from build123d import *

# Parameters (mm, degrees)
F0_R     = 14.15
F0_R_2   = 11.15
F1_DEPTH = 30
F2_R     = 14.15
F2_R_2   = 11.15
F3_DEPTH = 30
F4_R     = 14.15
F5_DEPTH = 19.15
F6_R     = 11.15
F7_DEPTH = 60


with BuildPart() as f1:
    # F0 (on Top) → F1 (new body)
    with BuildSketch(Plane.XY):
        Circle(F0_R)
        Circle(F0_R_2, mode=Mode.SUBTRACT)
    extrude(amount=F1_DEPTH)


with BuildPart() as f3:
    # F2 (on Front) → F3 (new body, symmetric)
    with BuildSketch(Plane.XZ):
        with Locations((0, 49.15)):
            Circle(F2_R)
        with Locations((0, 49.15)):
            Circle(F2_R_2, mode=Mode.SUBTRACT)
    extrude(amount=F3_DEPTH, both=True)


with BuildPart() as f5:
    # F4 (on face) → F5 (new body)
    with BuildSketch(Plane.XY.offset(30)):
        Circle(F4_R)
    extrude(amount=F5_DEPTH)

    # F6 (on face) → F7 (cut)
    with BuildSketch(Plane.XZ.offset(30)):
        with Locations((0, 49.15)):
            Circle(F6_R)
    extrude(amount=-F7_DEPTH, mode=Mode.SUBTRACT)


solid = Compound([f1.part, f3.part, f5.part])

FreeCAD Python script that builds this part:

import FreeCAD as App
import Part
import Sketcher
from FreeCAD import Vector

doc = App.newDocument("Part")
params = doc.addObject("Spreadsheet::Sheet", "Params")
for row, (alias, value) in enumerate([
    ("sketch1_diameter", "28.3 mm"),
    ("sketch1_diameter2", "22.3 mm"),
    ("pad1_length", "30 mm"),
    ("sketch2_diameter", "28.3 mm"),
    ("sketch2_diameter2", "22.3 mm"),
    ("pad2_length", "60 mm"),
    ("sketch3_diameter", "28.3 mm"),
    ("pad3_length", "19.15 mm"),
    ("sketch4_diameter", "22.3 mm"),
    ("pocket1_length", "60 mm"),
], start=1):
    params.set(f"A{row}", alias)
    params.set(f"B{row}", "=" + value)
    params.setAlias(f"B{row}", alias)

body = doc.addObject("PartDesign::Body", "Body")

# Sketch on XY plane
sketch1 = body.newObject("Sketcher::SketchObject", "Sketch")
sketch1.AttachmentSupport = (doc.getObject("XY_Plane"), [""])
sketch1.MapMode = "FlatFace"
sketch1.addGeometry(Part.Circle(Vector(0, 0, 0), Vector(0, 0, 1), 14), False)
sketch1.addGeometry(Part.Circle(Vector(0, 0, 0), Vector(0, 0, 1), 11), False)
sketch1.addConstraint(Sketcher.Constraint("Coincident", 0, 3, -1, 1))
sketch1.addConstraint(Sketcher.Constraint("Coincident", 1, 3, -1, 1))
sketch1.addConstraint(Sketcher.Constraint("Diameter", 0, 28.3))
sketch1.addConstraint(Sketcher.Constraint("Diameter", 1, 22.3))
sketch1.setExpression("Constraints[2]", "Params.sketch1_diameter")
sketch1.setExpression("Constraints[3]", "Params.sketch1_diameter2")
pad1 = body.newObject("PartDesign::Pad", "Pad")
pad1.Profile = sketch1
pad1.setExpression("Length", "Params.pad1_length")
body2 = doc.addObject("PartDesign::Body", "Body001")

# Sketch on XZ plane
sketch2 = body2.newObject("Sketcher::SketchObject", "Sketch001")
sketch2.AttachmentSupport = (doc.getObject("XZ_Plane001"), [""])
sketch2.MapMode = "FlatFace"
sketch2.addGeometry(Part.Circle(Vector(0, 49, 0), Vector(0, 0, 1), 14), False)
sketch2.addGeometry(Part.Circle(Vector(0, 49, 0), Vector(0, 0, 1), 11), False)
sketch2.addConstraint(Sketcher.Constraint("Coincident", 1, 3, 0, 3))
sketch2.addConstraint(Sketcher.Constraint("PointOnObject", 0, 3, -2))
sketch2.addConstraint(Sketcher.Constraint("Diameter", 0, 28.3))
sketch2.addConstraint(Sketcher.Constraint("Diameter", 1, 22.3))
sketch2.addConstraint(Sketcher.Constraint("DistanceY", -1, 1, 0, 3, 49.15))
sketch2.setExpression("Constraints[2]", "Params.sketch2_diameter")
sketch2.setExpression("Constraints[3]", "Params.sketch2_diameter2")
pad2 = body2.newObject("PartDesign::Pad", "Pad001")
pad2.Profile = sketch2
pad2.setExpression("Length", "Params.pad2_length")
pad2.Midplane = True
body3 = doc.addObject("PartDesign::Body", "Body002")

# Sketch on XY plane
sketch3 = body3.newObject("Sketcher::SketchObject", "Sketch002")
sketch3.AttachmentSupport = (doc.getObject("XY_Plane002"), [""])
sketch3.MapMode = "FlatFace"
sketch3.AttachmentOffset = App.Placement(Vector(0, 0, 30), App.Rotation())
sketch3.addGeometry(Part.Circle(Vector(0, 0, 0), Vector(0, 0, 1), 14), False)
sketch3.addConstraint(Sketcher.Constraint("Coincident", 0, 3, -1, 1))
sketch3.addConstraint(Sketcher.Constraint("Diameter", 0, 28.3))
sketch3.setExpression("Constraints[1]", "Params.sketch3_diameter")
pad3 = body3.newObject("PartDesign::Pad", "Pad002")
pad3.Profile = sketch3
pad3.setExpression("Length", "Params.pad3_length")

# Sketch on XZ plane
sketch4 = body3.newObject("Sketcher::SketchObject", "Sketch003")
sketch4.AttachmentSupport = (doc.getObject("XZ_Plane002"), [""])
sketch4.MapMode = "FlatFace"
sketch4.AttachmentOffset = App.Placement(Vector(0, 0, 30), App.Rotation())
sketch4.addGeometry(Part.Circle(Vector(0, 49, 0), Vector(0, 0, 1), 11), False)
sketch4.addConstraint(Sketcher.Constraint("PointOnObject", 0, 3, -2))
sketch4.addConstraint(Sketcher.Constraint("Diameter", 0, 22.3))
sketch4.addConstraint(Sketcher.Constraint("DistanceY", -1, 1, 0, 3, 49.15))
sketch4.setExpression("Constraints[1]", "Params.sketch4_diameter")
pocket1 = body3.newObject("PartDesign::Pocket", "Pocket")
pocket1.Profile = sketch4
pocket1.setExpression("Length", "Params.pocket1_length")

doc.recompute()
